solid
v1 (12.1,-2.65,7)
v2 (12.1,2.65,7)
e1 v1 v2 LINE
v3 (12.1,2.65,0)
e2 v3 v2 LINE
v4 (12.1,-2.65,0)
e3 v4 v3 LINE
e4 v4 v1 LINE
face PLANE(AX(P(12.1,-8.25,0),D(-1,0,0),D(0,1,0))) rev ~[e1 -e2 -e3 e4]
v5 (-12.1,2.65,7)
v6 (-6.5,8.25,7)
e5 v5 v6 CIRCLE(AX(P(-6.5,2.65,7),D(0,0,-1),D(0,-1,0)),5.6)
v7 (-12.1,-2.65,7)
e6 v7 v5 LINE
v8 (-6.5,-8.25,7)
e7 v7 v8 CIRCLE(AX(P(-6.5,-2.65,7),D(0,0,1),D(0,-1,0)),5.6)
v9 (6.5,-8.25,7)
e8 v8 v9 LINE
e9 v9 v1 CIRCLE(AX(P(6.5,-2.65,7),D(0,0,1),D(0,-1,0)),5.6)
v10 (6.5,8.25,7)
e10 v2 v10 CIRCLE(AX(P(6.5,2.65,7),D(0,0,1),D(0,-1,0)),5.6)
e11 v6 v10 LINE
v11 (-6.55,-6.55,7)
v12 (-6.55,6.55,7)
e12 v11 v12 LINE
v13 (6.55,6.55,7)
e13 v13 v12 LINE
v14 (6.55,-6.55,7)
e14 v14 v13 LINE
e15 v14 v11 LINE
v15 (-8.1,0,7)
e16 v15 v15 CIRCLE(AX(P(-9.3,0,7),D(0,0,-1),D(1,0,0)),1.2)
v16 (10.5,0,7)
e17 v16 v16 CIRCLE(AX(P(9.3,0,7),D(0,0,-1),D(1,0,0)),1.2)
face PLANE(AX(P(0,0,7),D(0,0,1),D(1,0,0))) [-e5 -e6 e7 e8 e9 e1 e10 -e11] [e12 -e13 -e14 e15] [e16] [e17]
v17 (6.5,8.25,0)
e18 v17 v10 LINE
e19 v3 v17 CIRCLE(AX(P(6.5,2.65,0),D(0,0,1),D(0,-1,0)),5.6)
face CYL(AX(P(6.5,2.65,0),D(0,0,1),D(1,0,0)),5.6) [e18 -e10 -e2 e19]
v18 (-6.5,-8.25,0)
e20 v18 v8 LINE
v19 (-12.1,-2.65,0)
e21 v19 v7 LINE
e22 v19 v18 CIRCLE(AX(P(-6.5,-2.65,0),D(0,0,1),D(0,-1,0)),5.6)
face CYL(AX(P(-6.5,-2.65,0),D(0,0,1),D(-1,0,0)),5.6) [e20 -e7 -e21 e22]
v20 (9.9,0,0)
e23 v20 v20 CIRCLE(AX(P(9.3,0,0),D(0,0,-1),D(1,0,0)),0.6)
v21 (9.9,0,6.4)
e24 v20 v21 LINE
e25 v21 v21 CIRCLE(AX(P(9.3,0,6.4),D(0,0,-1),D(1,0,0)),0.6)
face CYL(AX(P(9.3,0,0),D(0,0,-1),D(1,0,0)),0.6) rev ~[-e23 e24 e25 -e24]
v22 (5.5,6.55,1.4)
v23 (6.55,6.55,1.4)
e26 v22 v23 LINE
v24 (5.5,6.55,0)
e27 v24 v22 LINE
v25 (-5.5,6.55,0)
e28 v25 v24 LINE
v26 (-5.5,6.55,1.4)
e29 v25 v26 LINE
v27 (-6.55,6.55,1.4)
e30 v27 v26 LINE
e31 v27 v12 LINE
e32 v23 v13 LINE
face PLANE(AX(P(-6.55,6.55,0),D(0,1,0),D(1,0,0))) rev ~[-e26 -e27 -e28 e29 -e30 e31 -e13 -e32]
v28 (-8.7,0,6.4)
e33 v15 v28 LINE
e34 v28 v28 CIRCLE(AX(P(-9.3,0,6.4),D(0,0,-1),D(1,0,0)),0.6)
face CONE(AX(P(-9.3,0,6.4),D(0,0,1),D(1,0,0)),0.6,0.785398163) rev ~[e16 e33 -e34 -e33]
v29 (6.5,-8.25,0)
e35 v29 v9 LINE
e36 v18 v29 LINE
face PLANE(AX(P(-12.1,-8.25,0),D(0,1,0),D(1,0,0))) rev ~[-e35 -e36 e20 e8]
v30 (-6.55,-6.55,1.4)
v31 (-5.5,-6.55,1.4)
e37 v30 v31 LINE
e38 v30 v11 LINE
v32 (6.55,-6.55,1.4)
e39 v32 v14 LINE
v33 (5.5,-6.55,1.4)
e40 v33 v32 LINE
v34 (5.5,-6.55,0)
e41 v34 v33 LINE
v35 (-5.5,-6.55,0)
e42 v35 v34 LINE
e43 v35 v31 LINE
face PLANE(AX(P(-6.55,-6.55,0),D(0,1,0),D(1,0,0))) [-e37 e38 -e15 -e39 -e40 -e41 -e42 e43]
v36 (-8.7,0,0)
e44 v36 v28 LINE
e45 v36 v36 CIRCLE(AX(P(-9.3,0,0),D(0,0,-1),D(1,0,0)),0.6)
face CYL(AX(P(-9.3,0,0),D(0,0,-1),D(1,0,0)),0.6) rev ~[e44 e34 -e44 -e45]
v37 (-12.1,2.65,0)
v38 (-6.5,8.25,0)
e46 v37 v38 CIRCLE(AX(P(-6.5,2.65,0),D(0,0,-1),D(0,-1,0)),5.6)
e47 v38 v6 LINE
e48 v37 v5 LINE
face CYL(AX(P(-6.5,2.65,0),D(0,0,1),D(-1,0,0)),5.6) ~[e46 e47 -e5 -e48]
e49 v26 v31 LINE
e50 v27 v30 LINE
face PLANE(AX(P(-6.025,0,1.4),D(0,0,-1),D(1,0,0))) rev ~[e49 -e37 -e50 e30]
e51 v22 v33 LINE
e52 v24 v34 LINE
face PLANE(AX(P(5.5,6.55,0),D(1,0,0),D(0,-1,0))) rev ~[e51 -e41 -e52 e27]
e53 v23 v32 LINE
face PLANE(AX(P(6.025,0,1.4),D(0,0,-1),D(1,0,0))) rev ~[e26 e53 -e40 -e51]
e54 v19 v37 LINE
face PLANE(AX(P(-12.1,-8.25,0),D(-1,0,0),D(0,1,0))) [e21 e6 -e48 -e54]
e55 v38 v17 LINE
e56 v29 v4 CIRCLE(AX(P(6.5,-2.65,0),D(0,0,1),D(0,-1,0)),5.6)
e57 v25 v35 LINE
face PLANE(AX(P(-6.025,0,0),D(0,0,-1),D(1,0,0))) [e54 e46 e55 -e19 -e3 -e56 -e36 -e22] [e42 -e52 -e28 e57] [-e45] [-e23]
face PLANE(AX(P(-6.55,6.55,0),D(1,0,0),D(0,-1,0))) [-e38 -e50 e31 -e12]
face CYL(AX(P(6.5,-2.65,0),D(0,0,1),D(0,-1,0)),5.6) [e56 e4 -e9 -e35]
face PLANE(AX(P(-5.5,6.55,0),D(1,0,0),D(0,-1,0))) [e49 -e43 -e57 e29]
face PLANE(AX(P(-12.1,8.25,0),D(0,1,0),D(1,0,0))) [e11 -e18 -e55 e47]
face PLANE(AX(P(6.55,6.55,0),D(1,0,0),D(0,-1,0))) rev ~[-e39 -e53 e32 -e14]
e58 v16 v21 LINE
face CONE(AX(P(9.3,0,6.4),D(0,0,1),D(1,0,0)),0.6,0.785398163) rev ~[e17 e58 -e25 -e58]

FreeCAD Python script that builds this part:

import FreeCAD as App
import Part
import Sketcher


def edges_at(feature, points):
    """Names of the edges that pass closest to the given points."""
    edges = feature.Shape.Edges
    near = lambda p: min(range(len(edges)), key=lambda i: edges[i].distToShape(Part.Vertex(*p))[0])
    return sorted({f"Edge{near(p) + 1}" for p in points})


def add_polygon(sketch, points):
    """Adds a closed chain of lines whose ends are joined by coincident constraints."""
    first, n = sketch.GeometryCount, len(points)
    for a, b in zip(points, points[1:] + points[:1]):
        sketch.addGeometry(Part.LineSegment(App.Vector(*a, 0), App.Vector(*b, 0)), False)
    for i in range(n):
        sketch.addConstraint(Sketcher.Constraint("Coincident", first + i, 2, first + (i + 1) % n, 1))

doc = App.newDocument("Part")
body = doc.addObject("PartDesign::Body", "Body")

# Sketch on XY plane
sketch1 = body.newObject("Sketcher::SketchObject", "Sketch")
sketch1.AttachmentSupport = (doc.getObject("XY_Plane"), [""])
sketch1.MapMode = "FlatFace"
add_polygon(sketch1, [(-12.1, 8.25), (-12.1, -8.25), (12.1, -8.25), (12.1, 8.25)])  # lines 0-3
sketch1.addConstraint(Sketcher.Constraint("Vertical", 0))
sketch1.addConstraint(Sketcher.Constraint("Horizontal", 1))
sketch1.addConstraint(Sketcher.Constraint("Vertical", 2))
sketch1.addConstraint(Sketcher.Constraint("Horizontal", 3))
sketch1.addConstraint(Sketcher.Constraint("Symmetric", 0, 2, 2, 2, -1, 1))
sketch1.addConstraint(Sketcher.Constraint("DistanceX", 1, 1, 1, 2, 24.2))
sketch1.addConstraint(Sketcher.Constraint("DistanceY", 0, 2, 0, 1, 16.5))
pad1 = body.newObject("PartDesign::Pad", "Pad")
pad1.Profile = sketch1
pad1.Length = 7
doc.recompute()

fillet = body.newObject("PartDesign::Fillet", "Fillet")
fillet.Base = (pad1, edges_at(pad1, [
    (-12.1, -8.25, 3.5),
    (12.1, -8.25, 3.5),
    (12.1, 8.25, 3.5),
    (-12.1, 8.25, 3.5),
]))
fillet.Radius = 5.6

# Sketch on XY plane
sketch2 = body.newObject("Sketcher::SketchObject", "Sketch001")
sketch2.AttachmentSupport = (doc.getObject("XY_Plane"), [""])
sketch2.MapMode = "FlatFace"
add_polygon(sketch2, [(-6.55, -6.55), (-6.55, 6.55), (6.55, 6.55), (6.55, -6.55)])  # lines 0-3
sketch2.addConstraint(Sketcher.Constraint("Vertical", 0))
sketch2.addConstraint(Sketcher.Constraint("Horizontal", 1))
sketch2.addConstraint(Sketcher.Constraint("Vertical", 2))
sketch2.addConstraint(Sketcher.Constraint("Horizontal", 3))
sketch2.addConstraint(Sketcher.Constraint("Symmetric", 0, 2, 2, 2, -1, 1))
sketch2.addConstraint(Sketcher.Constraint("Equal", 3, 0))
sketch2.addConstraint(Sketcher.Constraint("DistanceX", 1, 1, 1, 2, 13.1))
pocket1 = body.newObject("PartDesign::Pocket", "Pocket")
pocket1.Profile = sketch2
pocket1.Type = "ThroughAll"
pocket1.Reversed = True

# Sketch on XY plane
sketch3 = body.newObject("Sketcher::SketchObject", "Sketch002")
sketch3.AttachmentSupport = (doc.getObject("XY_Plane"), [""])
sketch3.MapMode = "FlatFace"
add_polygon(sketch3, [(-6.55, -6.55), (-6.55, 6.55), (-5.5, 6.55), (-5.5, -6.55)])  # lines 0-3
add_polygon(sketch3, [(5.5, -6.55), (5.5, 6.55), (6.55, 6.55), (6.55, -6.55)])  # lines 4-7
sketch3.addConstraint(Sketcher.Constraint("Vertical", 0))
sketch3.addConstraint(Sketcher.Constraint("Horizontal", 1))
sketch3.addConstraint(Sketcher.Constraint("Vertical", 2))
sketch3.addConstraint(Sketcher.Constraint("Horizontal", 3))
sketch3.addConstraint(Sketcher.Constraint("Vertical", 4))
sketch3.addConstraint(Sketcher.Constraint("Horizontal", 5))
sketch3.addConstraint(Sketcher.Constraint("Vertical", 6))
sketch3.addConstraint(Sketcher.Constraint("Horizontal", 7))
sketch3.addConstraint(Sketcher.Constraint("Symmetric", 2, 2, 4, 2, -1, 1))
sketch3.addConstraint(Sketcher.Constraint("Symmetric", 0, 2, 6, 2, -1, 1))
sketch3.addConstraint(Sketcher.Constraint("Horizontal", 1, 2, 4, 2))
sketch3.addConstraint(Sketcher.Constraint("DistanceY", 0, 1, 0, 2, 13.1))
sketch3.addConstraint(Sketcher.Constraint("DistanceX", 1, 2, 4, 2, 11.0))
sketch3.addConstraint(Sketcher.Constraint("DistanceX", 1, 1, 1, 2, 1.05))
pad2 = body.newObject("PartDesign::Pad", "Pad001")
pad2.Profile = sketch3
pad2.Length = 1.4

# Sketch on XY plane
sketch4 = body.newObject("Sketcher::SketchObject", "Sketch003")
sketch4.AttachmentSupport = (doc.getObject("XY_Plane"), [""])
sketch4.MapMode = "FlatFace"
sketch4.addGeometry(Part.Circle(App.Vector(-9.3, 0, 0), App.Vector(0, 0, 1), 0.6), False)
sketch4.addGeometry(Part.Circle(App.Vector(9.3, 0, 0), App.Vector(0, 0, 1), 0.6), False)
sketch4.addConstraint(Sketcher.Constraint("Equal", 0, 1))
sketch4.addConstraint(Sketcher.Constraint("Symmetric", 0, 3, 1, 3, -1, 1))
sketch4.addConstraint(Sketcher.Constraint("PointOnObject", 0, 3, -1))
sketch4.addConstraint(Sketcher.Constraint("Diameter", 0, 1.2))
sketch4.addConstraint(Sketcher.Constraint("DistanceX", 0, 3, -1, 1, 9.3))
pocket2 = body.newObject("PartDesign::Pocket", "Pocket001")
pocket2.Profile = sketch4
pocket2.Type = "ThroughAll"
pocket2.Reversed = True
doc.recompute()

chamfer = body.newObject("PartDesign::Chamfer", "Chamfer")
chamfer.Base = (pocket2, edges_at(pocket2, [(8.7, 0, 7), (-9.9, 0, 7)]))
chamfer.Size = 0.6

doc.recompute()
